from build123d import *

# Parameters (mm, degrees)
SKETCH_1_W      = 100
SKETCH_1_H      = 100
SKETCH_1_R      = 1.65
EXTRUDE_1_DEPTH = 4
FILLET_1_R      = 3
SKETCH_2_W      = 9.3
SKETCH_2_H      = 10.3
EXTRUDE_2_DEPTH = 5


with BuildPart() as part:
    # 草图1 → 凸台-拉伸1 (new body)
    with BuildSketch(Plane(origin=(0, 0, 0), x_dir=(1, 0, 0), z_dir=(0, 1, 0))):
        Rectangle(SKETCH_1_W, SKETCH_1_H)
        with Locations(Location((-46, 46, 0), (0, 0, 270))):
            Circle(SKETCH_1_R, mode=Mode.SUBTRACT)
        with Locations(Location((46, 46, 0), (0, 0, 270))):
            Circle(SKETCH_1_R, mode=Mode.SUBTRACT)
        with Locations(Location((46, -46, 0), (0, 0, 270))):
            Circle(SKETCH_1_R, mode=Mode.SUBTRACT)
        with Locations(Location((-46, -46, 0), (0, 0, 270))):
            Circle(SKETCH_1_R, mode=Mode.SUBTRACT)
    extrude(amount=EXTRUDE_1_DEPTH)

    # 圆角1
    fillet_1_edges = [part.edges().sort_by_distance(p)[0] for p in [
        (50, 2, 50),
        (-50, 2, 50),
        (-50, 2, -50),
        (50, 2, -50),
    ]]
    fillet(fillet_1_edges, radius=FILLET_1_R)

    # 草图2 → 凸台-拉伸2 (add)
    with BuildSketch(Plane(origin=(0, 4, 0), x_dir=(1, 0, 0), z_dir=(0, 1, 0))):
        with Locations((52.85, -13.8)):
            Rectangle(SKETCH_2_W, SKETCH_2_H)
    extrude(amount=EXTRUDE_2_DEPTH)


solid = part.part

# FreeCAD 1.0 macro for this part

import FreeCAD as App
import Part
import Sketcher
Q = App.Units.Quantity


def edges_at(feature, points):
    """Names of the edges that pass closest to the given points."""
    edges = feature.Shape.Edges
    near = lambda p: min(range(len(edges)), key=lambda i: edges[i].distToShape(Part.Vertex(*p))[0])
    return sorted({f"Edge{near(p) + 1}" for p in points})

doc = App.newDocument("Part")
body = doc.addObject("PartDesign::Body", "Body")

sketch1 = body.newObject("Sketcher::SketchObject", "Sketch")
sketch1.AttachmentSupport = (doc.getObject("XZ_Plane"), [""])
sketch1.MapMode = "FlatFace"
sketch1.addGeometry([
    Part.LineSegment(App.Vector(-50, -50, 0), App.Vector(-50, 50, 0)),
    Part.LineSegment(App.Vector(-50, 50, 0), App.Vector(50, 50, 0)),
    Part.LineSegment(App.Vector(50, 50, 0), App.Vector(50, -50, 0)),
    Part.LineSegment(App.Vector(50, -50, 0), App.Vector(-50, -50, 0)),
    Part.Circle(App.Vector(-46, 46, 0), App.Vector(0, 0, 1), 1.65),
    Part.Circle(App.Vector(46, 46, 0), App.Vector(0, 0, 1), 1.65),
    Part.Circle(App.Vector(-46, -46, 0), App.Vector(0, 0, 1), 1.65),
    Part.Circle(App.Vector(46, -46, 0), App.Vector(0, 0, 1), 1.65),
], False)
sketch1.addConstraint([
    Sketcher.Constraint("Coincident", 0, 2, 1, 1),
    Sketcher.Constraint("Coincident", 1, 2, 2, 1),
    Sketcher.Constraint("Coincident", 2, 2, 3, 1),
    Sketcher.Constraint("Coincident", 3, 2, 0, 1),
    Sketcher.Constraint("Vertical", 0),
    Sketcher.Constraint("Horizontal", 1),
    Sketcher.Constraint("Vertical", 2),
    Sketcher.Constraint("Horizontal", 3),
    Sketcher.Constraint("Equal", 4, 5),
    Sketcher.Constraint("Equal", 5, 6),
    Sketcher.Constraint("Equal", 6, 7),
    Sketcher.Constraint("Symmetric", 5, 3, 6, 3, -1, 1),
    Sketcher.Constraint("Symmetric", 4, 3, 7, 3, -1, 1),
    Sketcher.Constraint("Symmetric", 0, 2, 2, 2, -1, 1),
    Sketcher.Constraint("Symmetric", 4, 3, 5, 3, -2),
    Sketcher.Constraint("Equal", 3, 0),
    Sketcher.Constraint("Diameter", 4, Q("3.3 mm")),
    Sketcher.Constraint("DistanceX", 1, 1, 1, 2, Q("100 mm")),
    Sketcher.Constraint("DistanceX", 4, 3, -1, 1, Q("46 mm")),
    Sketcher.Constraint("DistanceY", -1, 1, 4, 3, Q("46 mm")),
])
pad1 = body.newObject("PartDesign::Pad", "Pad")
pad1.Profile = sketch1
pad1.Length = 4
pad1.Reversed = True
doc.recompute()

fillet = body.newObject("PartDesign::Fillet", "Fillet")
fillet.Base = (pad1, edges_at(pad1, [
    (50, 2, 50),
    (-50, 2, 50),
    (-50, 2, -50),
    (50, 2, -50),
]))
fillet.Radius = 3

sketch2 = body.newObject("Sketcher::SketchObject", "Sketch001")
sketch2.AttachmentSupport = (doc.getObject("XZ_Plane"), [""])
sketch2.MapMode = "FlatFace"
sketch2.AttachmentOffset = App.Placement(App.Vector(0, 0, -4), App.Rotation())
sketch2.addGeometry([
    Part.LineSegment(App.Vector(48.2, 8.65, 0), App.Vector(48.2, 18.95, 0)),
    Part.LineSegment(App.Vector(48.2, 18.95, 0), App.Vector(57.5, 18.95, 0)),
    Part.LineSegment(App.Vector(57.5, 18.95, 0), App.Vector(57.5, 8.65, 0)),
    Part.LineSegment(App.Vector(57.5, 8.65, 0), App.Vector(48.2, 8.65, 0)),
], False)
sketch2.addConstraint([
    Sketcher.Constraint("Coincident", 0, 2, 1, 1),
    Sketcher.Constraint("Coincident", 1, 2, 2, 1),
    Sketcher.Constraint("Coincident", 2, 2, 3, 1),
    Sketcher.Constraint("Coincident", 3, 2, 0, 1),
    Sketcher.Constraint("Vertical", 0),
    Sketcher.Constraint("Horizontal", 1),
    Sketcher.Constraint("Vertical", 2),
    Sketcher.Constraint("Horizontal", 3),
    Sketcher.Constraint("DistanceX", 1, 1, 1, 2, Q("9.3 mm")),
    Sketcher.Constraint("DistanceY", 0, 1, 0, 2, Q("10.3 mm")),
    Sketcher.Constraint("DistanceX", -1, 1, 0, 2, Q("48.2 mm")),
    Sketcher.Constraint("DistanceY", -1, 1, 0, 2, Q("18.95 mm")),
])
pad2 = body.newObject("PartDesign::Pad", "Pad001")
pad2.Profile = sketch2
pad2.Length = 5
pad2.Reversed = True

doc.recompute()
